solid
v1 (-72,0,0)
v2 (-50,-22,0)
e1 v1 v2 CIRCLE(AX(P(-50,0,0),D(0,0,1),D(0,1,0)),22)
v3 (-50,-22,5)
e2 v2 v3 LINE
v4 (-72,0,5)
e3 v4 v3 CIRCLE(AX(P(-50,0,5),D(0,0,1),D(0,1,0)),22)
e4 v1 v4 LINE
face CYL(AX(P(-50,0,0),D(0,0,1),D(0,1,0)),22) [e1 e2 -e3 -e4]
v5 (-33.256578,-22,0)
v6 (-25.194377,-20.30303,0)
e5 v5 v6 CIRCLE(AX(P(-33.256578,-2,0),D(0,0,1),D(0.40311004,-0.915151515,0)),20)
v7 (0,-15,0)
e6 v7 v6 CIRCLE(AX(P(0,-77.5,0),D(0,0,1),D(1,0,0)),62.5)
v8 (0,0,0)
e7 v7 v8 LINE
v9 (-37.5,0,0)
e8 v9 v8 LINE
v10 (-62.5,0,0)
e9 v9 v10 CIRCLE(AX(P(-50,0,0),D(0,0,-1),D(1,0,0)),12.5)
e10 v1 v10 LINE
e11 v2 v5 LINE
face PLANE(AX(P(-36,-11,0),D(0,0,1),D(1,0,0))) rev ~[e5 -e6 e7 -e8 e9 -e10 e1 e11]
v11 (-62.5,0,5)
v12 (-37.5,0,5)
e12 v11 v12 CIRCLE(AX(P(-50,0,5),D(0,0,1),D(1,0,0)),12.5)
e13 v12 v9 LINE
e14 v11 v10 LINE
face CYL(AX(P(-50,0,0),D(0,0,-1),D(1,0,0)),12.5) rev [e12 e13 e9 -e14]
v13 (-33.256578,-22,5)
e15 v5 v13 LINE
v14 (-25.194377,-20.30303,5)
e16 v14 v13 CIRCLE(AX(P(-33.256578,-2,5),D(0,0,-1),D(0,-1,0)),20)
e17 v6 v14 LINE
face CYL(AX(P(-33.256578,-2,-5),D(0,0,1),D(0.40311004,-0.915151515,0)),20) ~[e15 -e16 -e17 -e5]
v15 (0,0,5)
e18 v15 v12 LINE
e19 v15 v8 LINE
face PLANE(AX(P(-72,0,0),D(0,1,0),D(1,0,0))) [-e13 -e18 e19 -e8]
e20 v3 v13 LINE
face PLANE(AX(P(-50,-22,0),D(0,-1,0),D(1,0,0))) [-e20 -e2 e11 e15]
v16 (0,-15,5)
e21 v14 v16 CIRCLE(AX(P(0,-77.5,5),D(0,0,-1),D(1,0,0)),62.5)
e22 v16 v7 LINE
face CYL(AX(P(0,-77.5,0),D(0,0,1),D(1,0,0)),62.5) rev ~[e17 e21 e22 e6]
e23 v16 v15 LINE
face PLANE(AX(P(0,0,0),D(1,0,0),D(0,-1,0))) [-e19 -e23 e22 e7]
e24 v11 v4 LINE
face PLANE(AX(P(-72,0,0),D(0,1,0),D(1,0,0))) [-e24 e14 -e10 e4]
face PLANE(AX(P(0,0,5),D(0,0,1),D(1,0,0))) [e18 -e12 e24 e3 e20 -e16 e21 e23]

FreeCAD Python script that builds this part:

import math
import FreeCAD as App
import Part
import Sketcher

V = App.Vector


def edges_at(feature, points):
    """Names of the edges that pass closest to the given points."""
    edges = feature.Shape.Edges
    near = lambda p: min(range(len(edges)), key=lambda i: edges[i].distToShape(Part.Vertex(*p))[0])
    return sorted({f"Edge{near(p) + 1}" for p in points})


def add_polygon(sketch, points):
    """Adds a closed chain of lines whose ends are joined by coincident constraints."""
    first, n = sketch.GeometryCount, len(points)
    for a, b in zip(points, points[1:] + points[:1]):
        sketch.addGeometry(Part.LineSegment(App.Vector(*a, 0), App.Vector(*b, 0)), False)
    for i in range(n):
        sketch.addConstraint(Sketcher.Constraint("Coincident", first + i, 2, first + (i + 1) % n, 1))

doc = App.newDocument("Part")
body = doc.addObject("PartDesign::Body", "Body")

sketch1 = body.newObject("Sketcher::SketchObject", "Sketch")
sketch1.AttachmentSupport = (doc.getObject("XY_Plane"), [""])
sketch1.MapMode = "FlatFace"
sketch1.addGeometry(Part.ArcOfCircle(Part.Circle(V(-50, 0, 0), V(0, 0, 1), 22), math.radians(90), math.radians(270)), False)
sketch1.addGeometry(Part.LineSegment(V(-50, -22, 0), V(50, -22, 0)), False)
sketch1.addGeometry(Part.ArcOfCircle(Part.Circle(V(50, 0, 0), V(0, 0, 1), 22), math.radians(-90), math.radians(90)), False)
sketch1.addGeometry(Part.LineSegment(V(50, 22, 0), V(-50, 22, 0)), False)
sketch1.addGeometry(Part.Circle(V(-50, 0, 0), V(0, 0, 1), 12), False)
sketch1.addGeometry(Part.Circle(V(50, 0, 0), V(0, 0, 1), 12), False)
sketch1.addConstraint(Sketcher.Constraint("Tangent", 0, 2, 1, 1))
sketch1.addConstraint(Sketcher.Constraint("Tangent", 1, 2, 2, 1))
sketch1.addConstraint(Sketcher.Constraint("Tangent", 2, 2, 3, 1))
sketch1.addConstraint(Sketcher.Constraint("Tangent", 3, 2, 0, 1))
sketch1.addConstraint(Sketcher.Constraint("Horizontal", 1))
sketch1.addConstraint(Sketcher.Constraint("Horizontal", 3))
sketch1.addConstraint(Sketcher.Constraint("Coincident", 4, 3, 0, 3))
sketch1.addConstraint(Sketcher.Constraint("Coincident", 5, 3, 2, 3))
sketch1.addConstraint(Sketcher.Constraint("Equal", 4, 5))
sketch1.addConstraint(Sketcher.Constraint("Symmetric", 0, 3, 2, 3, -1, 1))
sketch1.addConstraint(Sketcher.Constraint("Diameter", 4, 25.0))
sketch1.addConstraint(Sketcher.Constraint("Radius", 0, 22.0))
sketch1.addConstraint(Sketcher.Constraint("DistanceX", 1, 1, 1, 2, 100.0))
pad1 = body.newObject("PartDesign::Pad", "Pad")
pad1.Profile = sketch1
pad1.Length = 10
pad1.Midplane = True

sketch2 = body.newObject("Sketcher::SketchObject", "Sketch001")
sketch2.AttachmentSupport = (doc.getObject("XY_Plane"), [""])
sketch2.MapMode = "FlatFace"
sketch2.addGeometry(Part.Circle(V(0, -78, 0), V(0, 0, 1), 62), False)
sketch2.addGeometry(Part.Circle(V(0, 78, 0), V(0, 0, 1), 62), False)
sketch2.addConstraint(Sketcher.Constraint("Equal", 0, 1))
sketch2.addConstraint(Sketcher.Constraint("Symmetric", 0, 3, 1, 3, -1, 1))
sketch2.addConstraint(Sketcher.Constraint("PointOnObject", 0, 3, -2))
sketch2.addConstraint(Sketcher.Constraint("Diameter", 0, 125.0))
sketch2.addConstraint(Sketcher.Constraint("DistanceY", 0, 3, 1, 3, 155.0))
pocket1 = body.newObject("PartDesign::Pocket", "Pocket")
pocket1.Profile = sketch2
pocket1.Type = "ThroughAll"
pocket1.Midplane = True
doc.recompute()

fillet = body.newObject("PartDesign::Fillet", "Fillet")
fillet.Base = (pocket1, edges_at(pocket1, [
    (-28.74, -22, 0),
    (28.74, -22, 0),
    (-28.74, 22, 0),
    (28.74, 22, 0),
]))
fillet.Radius = 20

sketch3 = body.newObject("Sketcher::SketchObject", "Sketch002")
sketch3.AttachmentSupport = (doc.getObject("XY_Plane"), [""])
sketch3.MapMode = "FlatFace"
add_polygon(sketch3, [(72, -22), (72, 22), (-72, 22), (-72, 0), (0, 0), (0, -22)])
sketch3.addConstraint(Sketcher.Constraint("Vertical", 0))
sketch3.addConstraint(Sketcher.Constraint("Horizontal", 1))
sketch3.addConstraint(Sketcher.Constraint("Vertical", 2))
sketch3.addConstraint(Sketcher.Constraint("Horizontal", 3))
sketch3.addConstraint(Sketcher.Constraint("Vertical", 4))
sketch3.addConstraint(Sketcher.Constraint("Horizontal", 5))
sketch3.addConstraint(Sketcher.Constraint("Coincident", 3, 2, -1, 1))
sketch3.addConstraint(Sketcher.Constraint("Symmetric", 1, 2, 5, 2, -1, 1))
sketch3.addConstraint(Sketcher.Constraint("DistanceX", 1, 2, 1, 1, 144.0))
sketch3.addConstraint(Sketcher.Constraint("DistanceY", 0, 1, 0, 2, 44.0))
pocket2 = body.newObject("PartDesign::Pocket", "Pocket001")
pocket2.Profile = sketch3
pocket2.Type = "ThroughAll"
pocket2.Midplane = True

sketch4 = body.newObject("Sketcher::SketchObject", "Sketch003")
sketch4.AttachmentSupport = (doc.getObject("XY_Plane"), [""])
sketch4.MapMode = "FlatFace"
add_polygon(sketch4, [(-72, 0), (-72, -22), (0, -22), (0, 0)])
sketch4.addConstraint(Sketcher.Constraint("Vertical", 0))
sketch4.addConstraint(Sketcher.Constraint("Horizontal", 1))
sketch4.addConstraint(Sketcher.Constraint("Vertical", 2))
sketch4.addConstraint(Sketcher.Constraint("Horizontal", 3))
sketch4.addConstraint(Sketcher.Constraint("Coincident", 2, 2, -1, 1))
sketch4.addConstraint(Sketcher.Constraint("DistanceX", 1, 1, 1, 2, 72.0))
sketch4.addConstraint(Sketcher.Constraint("DistanceY", 0, 2, 0, 1, 22.0))
pocket3 = body.newObject("PartDesign::Pocket", "Pocket002")
pocket3.Profile = sketch4
pocket3.Type = "ThroughAll"

doc.recompute()
